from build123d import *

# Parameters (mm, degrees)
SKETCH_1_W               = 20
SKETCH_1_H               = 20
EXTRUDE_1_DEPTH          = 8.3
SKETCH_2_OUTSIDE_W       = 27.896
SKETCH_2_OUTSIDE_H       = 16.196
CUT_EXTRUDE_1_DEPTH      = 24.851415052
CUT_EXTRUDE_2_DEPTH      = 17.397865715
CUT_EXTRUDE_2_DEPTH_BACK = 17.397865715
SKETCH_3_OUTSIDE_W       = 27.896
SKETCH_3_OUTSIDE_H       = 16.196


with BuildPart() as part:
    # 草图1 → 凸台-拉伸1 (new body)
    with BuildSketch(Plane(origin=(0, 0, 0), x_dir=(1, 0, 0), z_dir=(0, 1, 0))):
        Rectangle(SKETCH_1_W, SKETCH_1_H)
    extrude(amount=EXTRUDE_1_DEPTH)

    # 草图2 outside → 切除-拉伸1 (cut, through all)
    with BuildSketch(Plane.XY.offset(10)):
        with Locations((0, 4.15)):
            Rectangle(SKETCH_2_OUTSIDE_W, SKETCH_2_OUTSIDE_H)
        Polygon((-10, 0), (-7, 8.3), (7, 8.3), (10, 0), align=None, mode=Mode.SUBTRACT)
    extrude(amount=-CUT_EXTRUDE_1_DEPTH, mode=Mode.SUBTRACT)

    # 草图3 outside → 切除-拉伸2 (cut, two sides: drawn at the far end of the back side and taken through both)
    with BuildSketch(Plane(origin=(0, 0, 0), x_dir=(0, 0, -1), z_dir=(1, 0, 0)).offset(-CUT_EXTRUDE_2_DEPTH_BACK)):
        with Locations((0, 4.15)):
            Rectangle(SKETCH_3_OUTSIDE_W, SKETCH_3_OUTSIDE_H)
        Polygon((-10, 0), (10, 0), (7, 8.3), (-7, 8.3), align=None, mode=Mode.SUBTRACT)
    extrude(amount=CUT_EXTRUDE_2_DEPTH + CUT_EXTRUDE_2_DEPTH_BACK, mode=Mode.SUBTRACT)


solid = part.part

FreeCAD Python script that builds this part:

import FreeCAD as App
import Part
import Sketcher

V = App.Vector
Q = App.Units.Quantity


def add_polygon(sketch, points):
    """Adds a closed chain of lines whose ends are joined by coincident constraints."""
    first, n = sketch.GeometryCount, len(points)
    for a, b in zip(points, points[1:] + points[:1]):
        sketch.addGeometry(Part.LineSegment(App.Vector(*a, 0), App.Vector(*b, 0)), False)
    for i in range(n):
        sketch.addConstraint(Sketcher.Constraint("Coincident", first + i, 2, first + (i + 1) % n, 1))

doc = App.newDocument("Part")
params = doc.addObject("Spreadsheet::Sheet", "Params")
for row, (alias, value) in enumerate([
    ("sketch1_width", "20 mm"),
    ("pad1_length", "8.3 mm"),
    ("sketch2_width", "20 mm"),
    ("sketch2_width2", "14 mm"),
    ("sketch3_height", "20 mm"),
    ("sketch3_height2", "14 mm"),
], start=1):
    params.set(f"A{row}", alias)
    params.set(f"B{row}", "=" + value)
    params.setAlias(f"B{row}", alias)

body = doc.addObject("PartDesign::Body", "Body")

# Sketch on XZ plane
sketch1 = body.newObject("Sketcher::SketchObject", "Sketch")
sketch1.AttachmentSupport = (doc.getObject("XZ_Plane"), [""])
sketch1.MapMode = "FlatFace"
add_polygon(sketch1, [(-10, -10), (-10, 10), (10, 10), (10, -10)])  # lines 0-3
sketch1.addConstraint([
    Sketcher.Constraint("Vertical", 0),
    Sketcher.Constraint("Horizontal", 1),
    Sketcher.Constraint("Vertical", 2),
    Sketcher.Constraint("Horizontal", 3),
    Sketcher.Constraint("Symmetric", 0, 2, 2, 2, -1, 1),
    Sketcher.Constraint("Equal", 3, 0),
    Sketcher.Constraint("DistanceX", 1, 1, 1, 2, Q("20 mm")),
])
sketch1.setExpression("Constraints[10]", "Params.sketch1_width")
pad1 = body.newObject("PartDesign::Pad", "Pad")
pad1.Profile = sketch1
pad1.setExpression("Length", "Params.pad1_length")
pad1.Reversed = True

# Sketch on XY plane
sketch2 = body.newObject("Sketcher::SketchObject", "Sketch001")
sketch2.AttachmentSupport = (doc.getObject("XY_Plane"), [""])
sketch2.MapMode = "FlatFace"
sketch2.AttachmentOffset = App.Placement(V(0, 0, 10), App.Rotation())
add_polygon(sketch2, [(-14, 12), (-14, -4), (14, -4), (14, 12)])  # lines 0-3
add_polygon(sketch2, [(10, 0), (-10, 0), (-7, 8), (7, 8)])  # lines 4-7
sketch2.addConstraint([
    Sketcher.Constraint("Vertical", 0),
    Sketcher.Constraint("Horizontal", 1),
    Sketcher.Constraint("Vertical", 2),
    Sketcher.Constraint("Horizontal", 3),
    Sketcher.Constraint("Horizontal", 4),
    Sketcher.Constraint("Horizontal", 6),
    Sketcher.Constraint("Symmetric", 4, 2, 7, 2, -1, 1),
    Sketcher.Constraint("Equal", 5, 7),
    Sketcher.Constraint("DistanceX", 4, 2, 4, 1, Q("20 mm")),
    Sketcher.Constraint("DistanceX", 6, 1, 6, 2, Q("14 mm")),
    Sketcher.Constraint("DistanceY", -1, 1, 5, 2, Q("8.3 mm")),
    Sketcher.Constraint("DistanceX", 1, 1, 1, 2, Q("27.896 mm")),
    Sketcher.Constraint("DistanceY", 0, 2, 0, 1, Q("16.196 mm")),
    Sketcher.Constraint("DistanceX", 0, 2, -1, 1, Q("13.948 mm")),
    Sketcher.Constraint("DistanceY", 0, 2, -1, 1, Q("3.948 mm")),
])
sketch2.setExpression("Constraints[16]", "Params.sketch2_width")
sketch2.setExpression("Constraints[17]", "Params.sketch2_width2")
pocket1 = body.newObject("PartDesign::Pocket", "Pocket")
pocket1.Profile = sketch2
pocket1.Type = "ThroughAll"

# Sketch on YZ plane
sketch3 = body.newObject("Sketcher::SketchObject", "Sketch002")
sketch3.AttachmentSupport = (doc.getObject("YZ_Plane"), [""])
sketch3.MapMode = "FlatFace"
add_polygon(sketch3, [(12, 14), (-4, 14), (-4, -14), (12, -14)])  # lines 0-3
add_polygon(sketch3, [(0, -10), (0, 10), (8, 7), (8, -7)])  # lines 4-7
sketch3.addConstraint([
    Sketcher.Constraint("Horizontal", 0),
    Sketcher.Constraint("Vertical", 1),
    Sketcher.Constraint("Horizontal", 2),
    Sketcher.Constraint("Vertical", 3),
    Sketcher.Constraint("Vertical", 4),
    Sketcher.Constraint("Vertical", 6),
    Sketcher.Constraint("Symmetric", 4, 2, 7, 2, -1, 1),
    Sketcher.Constraint("Equal", 5, 7),
    Sketcher.Constraint("DistanceY", 4, 1, 4, 2, Q("20 mm")),
    Sketcher.Constraint("DistanceY", 6, 2, 6, 1, Q("14 mm")),
    Sketcher.Constraint("DistanceX", -1, 1, 5, 2, Q("8.3 mm")),
    Sketcher.Constraint("DistanceX", 0, 2, 0, 1, Q("16.196 mm")),
    Sketcher.Constraint("DistanceY", 1, 2, 1, 1, Q("27.896 mm")),
    Sketcher.Constraint("DistanceX", 0, 2, -1, 1, Q("3.948 mm")),
    Sketcher.Constraint("DistanceY", -1, 1, 0, 2, Q("13.948 mm")),
])
sketch3.setExpression("Constraints[16]", "Params.sketch3_height")
sketch3.setExpression("Constraints[17]", "Params.sketch3_height2")
pocket2 = body.newObject("PartDesign::Pocket", "Pocket001")
pocket2.Profile = sketch3
pocket2.Type = "ThroughAll"
pocket2.Midplane = True

doc.recompute()
